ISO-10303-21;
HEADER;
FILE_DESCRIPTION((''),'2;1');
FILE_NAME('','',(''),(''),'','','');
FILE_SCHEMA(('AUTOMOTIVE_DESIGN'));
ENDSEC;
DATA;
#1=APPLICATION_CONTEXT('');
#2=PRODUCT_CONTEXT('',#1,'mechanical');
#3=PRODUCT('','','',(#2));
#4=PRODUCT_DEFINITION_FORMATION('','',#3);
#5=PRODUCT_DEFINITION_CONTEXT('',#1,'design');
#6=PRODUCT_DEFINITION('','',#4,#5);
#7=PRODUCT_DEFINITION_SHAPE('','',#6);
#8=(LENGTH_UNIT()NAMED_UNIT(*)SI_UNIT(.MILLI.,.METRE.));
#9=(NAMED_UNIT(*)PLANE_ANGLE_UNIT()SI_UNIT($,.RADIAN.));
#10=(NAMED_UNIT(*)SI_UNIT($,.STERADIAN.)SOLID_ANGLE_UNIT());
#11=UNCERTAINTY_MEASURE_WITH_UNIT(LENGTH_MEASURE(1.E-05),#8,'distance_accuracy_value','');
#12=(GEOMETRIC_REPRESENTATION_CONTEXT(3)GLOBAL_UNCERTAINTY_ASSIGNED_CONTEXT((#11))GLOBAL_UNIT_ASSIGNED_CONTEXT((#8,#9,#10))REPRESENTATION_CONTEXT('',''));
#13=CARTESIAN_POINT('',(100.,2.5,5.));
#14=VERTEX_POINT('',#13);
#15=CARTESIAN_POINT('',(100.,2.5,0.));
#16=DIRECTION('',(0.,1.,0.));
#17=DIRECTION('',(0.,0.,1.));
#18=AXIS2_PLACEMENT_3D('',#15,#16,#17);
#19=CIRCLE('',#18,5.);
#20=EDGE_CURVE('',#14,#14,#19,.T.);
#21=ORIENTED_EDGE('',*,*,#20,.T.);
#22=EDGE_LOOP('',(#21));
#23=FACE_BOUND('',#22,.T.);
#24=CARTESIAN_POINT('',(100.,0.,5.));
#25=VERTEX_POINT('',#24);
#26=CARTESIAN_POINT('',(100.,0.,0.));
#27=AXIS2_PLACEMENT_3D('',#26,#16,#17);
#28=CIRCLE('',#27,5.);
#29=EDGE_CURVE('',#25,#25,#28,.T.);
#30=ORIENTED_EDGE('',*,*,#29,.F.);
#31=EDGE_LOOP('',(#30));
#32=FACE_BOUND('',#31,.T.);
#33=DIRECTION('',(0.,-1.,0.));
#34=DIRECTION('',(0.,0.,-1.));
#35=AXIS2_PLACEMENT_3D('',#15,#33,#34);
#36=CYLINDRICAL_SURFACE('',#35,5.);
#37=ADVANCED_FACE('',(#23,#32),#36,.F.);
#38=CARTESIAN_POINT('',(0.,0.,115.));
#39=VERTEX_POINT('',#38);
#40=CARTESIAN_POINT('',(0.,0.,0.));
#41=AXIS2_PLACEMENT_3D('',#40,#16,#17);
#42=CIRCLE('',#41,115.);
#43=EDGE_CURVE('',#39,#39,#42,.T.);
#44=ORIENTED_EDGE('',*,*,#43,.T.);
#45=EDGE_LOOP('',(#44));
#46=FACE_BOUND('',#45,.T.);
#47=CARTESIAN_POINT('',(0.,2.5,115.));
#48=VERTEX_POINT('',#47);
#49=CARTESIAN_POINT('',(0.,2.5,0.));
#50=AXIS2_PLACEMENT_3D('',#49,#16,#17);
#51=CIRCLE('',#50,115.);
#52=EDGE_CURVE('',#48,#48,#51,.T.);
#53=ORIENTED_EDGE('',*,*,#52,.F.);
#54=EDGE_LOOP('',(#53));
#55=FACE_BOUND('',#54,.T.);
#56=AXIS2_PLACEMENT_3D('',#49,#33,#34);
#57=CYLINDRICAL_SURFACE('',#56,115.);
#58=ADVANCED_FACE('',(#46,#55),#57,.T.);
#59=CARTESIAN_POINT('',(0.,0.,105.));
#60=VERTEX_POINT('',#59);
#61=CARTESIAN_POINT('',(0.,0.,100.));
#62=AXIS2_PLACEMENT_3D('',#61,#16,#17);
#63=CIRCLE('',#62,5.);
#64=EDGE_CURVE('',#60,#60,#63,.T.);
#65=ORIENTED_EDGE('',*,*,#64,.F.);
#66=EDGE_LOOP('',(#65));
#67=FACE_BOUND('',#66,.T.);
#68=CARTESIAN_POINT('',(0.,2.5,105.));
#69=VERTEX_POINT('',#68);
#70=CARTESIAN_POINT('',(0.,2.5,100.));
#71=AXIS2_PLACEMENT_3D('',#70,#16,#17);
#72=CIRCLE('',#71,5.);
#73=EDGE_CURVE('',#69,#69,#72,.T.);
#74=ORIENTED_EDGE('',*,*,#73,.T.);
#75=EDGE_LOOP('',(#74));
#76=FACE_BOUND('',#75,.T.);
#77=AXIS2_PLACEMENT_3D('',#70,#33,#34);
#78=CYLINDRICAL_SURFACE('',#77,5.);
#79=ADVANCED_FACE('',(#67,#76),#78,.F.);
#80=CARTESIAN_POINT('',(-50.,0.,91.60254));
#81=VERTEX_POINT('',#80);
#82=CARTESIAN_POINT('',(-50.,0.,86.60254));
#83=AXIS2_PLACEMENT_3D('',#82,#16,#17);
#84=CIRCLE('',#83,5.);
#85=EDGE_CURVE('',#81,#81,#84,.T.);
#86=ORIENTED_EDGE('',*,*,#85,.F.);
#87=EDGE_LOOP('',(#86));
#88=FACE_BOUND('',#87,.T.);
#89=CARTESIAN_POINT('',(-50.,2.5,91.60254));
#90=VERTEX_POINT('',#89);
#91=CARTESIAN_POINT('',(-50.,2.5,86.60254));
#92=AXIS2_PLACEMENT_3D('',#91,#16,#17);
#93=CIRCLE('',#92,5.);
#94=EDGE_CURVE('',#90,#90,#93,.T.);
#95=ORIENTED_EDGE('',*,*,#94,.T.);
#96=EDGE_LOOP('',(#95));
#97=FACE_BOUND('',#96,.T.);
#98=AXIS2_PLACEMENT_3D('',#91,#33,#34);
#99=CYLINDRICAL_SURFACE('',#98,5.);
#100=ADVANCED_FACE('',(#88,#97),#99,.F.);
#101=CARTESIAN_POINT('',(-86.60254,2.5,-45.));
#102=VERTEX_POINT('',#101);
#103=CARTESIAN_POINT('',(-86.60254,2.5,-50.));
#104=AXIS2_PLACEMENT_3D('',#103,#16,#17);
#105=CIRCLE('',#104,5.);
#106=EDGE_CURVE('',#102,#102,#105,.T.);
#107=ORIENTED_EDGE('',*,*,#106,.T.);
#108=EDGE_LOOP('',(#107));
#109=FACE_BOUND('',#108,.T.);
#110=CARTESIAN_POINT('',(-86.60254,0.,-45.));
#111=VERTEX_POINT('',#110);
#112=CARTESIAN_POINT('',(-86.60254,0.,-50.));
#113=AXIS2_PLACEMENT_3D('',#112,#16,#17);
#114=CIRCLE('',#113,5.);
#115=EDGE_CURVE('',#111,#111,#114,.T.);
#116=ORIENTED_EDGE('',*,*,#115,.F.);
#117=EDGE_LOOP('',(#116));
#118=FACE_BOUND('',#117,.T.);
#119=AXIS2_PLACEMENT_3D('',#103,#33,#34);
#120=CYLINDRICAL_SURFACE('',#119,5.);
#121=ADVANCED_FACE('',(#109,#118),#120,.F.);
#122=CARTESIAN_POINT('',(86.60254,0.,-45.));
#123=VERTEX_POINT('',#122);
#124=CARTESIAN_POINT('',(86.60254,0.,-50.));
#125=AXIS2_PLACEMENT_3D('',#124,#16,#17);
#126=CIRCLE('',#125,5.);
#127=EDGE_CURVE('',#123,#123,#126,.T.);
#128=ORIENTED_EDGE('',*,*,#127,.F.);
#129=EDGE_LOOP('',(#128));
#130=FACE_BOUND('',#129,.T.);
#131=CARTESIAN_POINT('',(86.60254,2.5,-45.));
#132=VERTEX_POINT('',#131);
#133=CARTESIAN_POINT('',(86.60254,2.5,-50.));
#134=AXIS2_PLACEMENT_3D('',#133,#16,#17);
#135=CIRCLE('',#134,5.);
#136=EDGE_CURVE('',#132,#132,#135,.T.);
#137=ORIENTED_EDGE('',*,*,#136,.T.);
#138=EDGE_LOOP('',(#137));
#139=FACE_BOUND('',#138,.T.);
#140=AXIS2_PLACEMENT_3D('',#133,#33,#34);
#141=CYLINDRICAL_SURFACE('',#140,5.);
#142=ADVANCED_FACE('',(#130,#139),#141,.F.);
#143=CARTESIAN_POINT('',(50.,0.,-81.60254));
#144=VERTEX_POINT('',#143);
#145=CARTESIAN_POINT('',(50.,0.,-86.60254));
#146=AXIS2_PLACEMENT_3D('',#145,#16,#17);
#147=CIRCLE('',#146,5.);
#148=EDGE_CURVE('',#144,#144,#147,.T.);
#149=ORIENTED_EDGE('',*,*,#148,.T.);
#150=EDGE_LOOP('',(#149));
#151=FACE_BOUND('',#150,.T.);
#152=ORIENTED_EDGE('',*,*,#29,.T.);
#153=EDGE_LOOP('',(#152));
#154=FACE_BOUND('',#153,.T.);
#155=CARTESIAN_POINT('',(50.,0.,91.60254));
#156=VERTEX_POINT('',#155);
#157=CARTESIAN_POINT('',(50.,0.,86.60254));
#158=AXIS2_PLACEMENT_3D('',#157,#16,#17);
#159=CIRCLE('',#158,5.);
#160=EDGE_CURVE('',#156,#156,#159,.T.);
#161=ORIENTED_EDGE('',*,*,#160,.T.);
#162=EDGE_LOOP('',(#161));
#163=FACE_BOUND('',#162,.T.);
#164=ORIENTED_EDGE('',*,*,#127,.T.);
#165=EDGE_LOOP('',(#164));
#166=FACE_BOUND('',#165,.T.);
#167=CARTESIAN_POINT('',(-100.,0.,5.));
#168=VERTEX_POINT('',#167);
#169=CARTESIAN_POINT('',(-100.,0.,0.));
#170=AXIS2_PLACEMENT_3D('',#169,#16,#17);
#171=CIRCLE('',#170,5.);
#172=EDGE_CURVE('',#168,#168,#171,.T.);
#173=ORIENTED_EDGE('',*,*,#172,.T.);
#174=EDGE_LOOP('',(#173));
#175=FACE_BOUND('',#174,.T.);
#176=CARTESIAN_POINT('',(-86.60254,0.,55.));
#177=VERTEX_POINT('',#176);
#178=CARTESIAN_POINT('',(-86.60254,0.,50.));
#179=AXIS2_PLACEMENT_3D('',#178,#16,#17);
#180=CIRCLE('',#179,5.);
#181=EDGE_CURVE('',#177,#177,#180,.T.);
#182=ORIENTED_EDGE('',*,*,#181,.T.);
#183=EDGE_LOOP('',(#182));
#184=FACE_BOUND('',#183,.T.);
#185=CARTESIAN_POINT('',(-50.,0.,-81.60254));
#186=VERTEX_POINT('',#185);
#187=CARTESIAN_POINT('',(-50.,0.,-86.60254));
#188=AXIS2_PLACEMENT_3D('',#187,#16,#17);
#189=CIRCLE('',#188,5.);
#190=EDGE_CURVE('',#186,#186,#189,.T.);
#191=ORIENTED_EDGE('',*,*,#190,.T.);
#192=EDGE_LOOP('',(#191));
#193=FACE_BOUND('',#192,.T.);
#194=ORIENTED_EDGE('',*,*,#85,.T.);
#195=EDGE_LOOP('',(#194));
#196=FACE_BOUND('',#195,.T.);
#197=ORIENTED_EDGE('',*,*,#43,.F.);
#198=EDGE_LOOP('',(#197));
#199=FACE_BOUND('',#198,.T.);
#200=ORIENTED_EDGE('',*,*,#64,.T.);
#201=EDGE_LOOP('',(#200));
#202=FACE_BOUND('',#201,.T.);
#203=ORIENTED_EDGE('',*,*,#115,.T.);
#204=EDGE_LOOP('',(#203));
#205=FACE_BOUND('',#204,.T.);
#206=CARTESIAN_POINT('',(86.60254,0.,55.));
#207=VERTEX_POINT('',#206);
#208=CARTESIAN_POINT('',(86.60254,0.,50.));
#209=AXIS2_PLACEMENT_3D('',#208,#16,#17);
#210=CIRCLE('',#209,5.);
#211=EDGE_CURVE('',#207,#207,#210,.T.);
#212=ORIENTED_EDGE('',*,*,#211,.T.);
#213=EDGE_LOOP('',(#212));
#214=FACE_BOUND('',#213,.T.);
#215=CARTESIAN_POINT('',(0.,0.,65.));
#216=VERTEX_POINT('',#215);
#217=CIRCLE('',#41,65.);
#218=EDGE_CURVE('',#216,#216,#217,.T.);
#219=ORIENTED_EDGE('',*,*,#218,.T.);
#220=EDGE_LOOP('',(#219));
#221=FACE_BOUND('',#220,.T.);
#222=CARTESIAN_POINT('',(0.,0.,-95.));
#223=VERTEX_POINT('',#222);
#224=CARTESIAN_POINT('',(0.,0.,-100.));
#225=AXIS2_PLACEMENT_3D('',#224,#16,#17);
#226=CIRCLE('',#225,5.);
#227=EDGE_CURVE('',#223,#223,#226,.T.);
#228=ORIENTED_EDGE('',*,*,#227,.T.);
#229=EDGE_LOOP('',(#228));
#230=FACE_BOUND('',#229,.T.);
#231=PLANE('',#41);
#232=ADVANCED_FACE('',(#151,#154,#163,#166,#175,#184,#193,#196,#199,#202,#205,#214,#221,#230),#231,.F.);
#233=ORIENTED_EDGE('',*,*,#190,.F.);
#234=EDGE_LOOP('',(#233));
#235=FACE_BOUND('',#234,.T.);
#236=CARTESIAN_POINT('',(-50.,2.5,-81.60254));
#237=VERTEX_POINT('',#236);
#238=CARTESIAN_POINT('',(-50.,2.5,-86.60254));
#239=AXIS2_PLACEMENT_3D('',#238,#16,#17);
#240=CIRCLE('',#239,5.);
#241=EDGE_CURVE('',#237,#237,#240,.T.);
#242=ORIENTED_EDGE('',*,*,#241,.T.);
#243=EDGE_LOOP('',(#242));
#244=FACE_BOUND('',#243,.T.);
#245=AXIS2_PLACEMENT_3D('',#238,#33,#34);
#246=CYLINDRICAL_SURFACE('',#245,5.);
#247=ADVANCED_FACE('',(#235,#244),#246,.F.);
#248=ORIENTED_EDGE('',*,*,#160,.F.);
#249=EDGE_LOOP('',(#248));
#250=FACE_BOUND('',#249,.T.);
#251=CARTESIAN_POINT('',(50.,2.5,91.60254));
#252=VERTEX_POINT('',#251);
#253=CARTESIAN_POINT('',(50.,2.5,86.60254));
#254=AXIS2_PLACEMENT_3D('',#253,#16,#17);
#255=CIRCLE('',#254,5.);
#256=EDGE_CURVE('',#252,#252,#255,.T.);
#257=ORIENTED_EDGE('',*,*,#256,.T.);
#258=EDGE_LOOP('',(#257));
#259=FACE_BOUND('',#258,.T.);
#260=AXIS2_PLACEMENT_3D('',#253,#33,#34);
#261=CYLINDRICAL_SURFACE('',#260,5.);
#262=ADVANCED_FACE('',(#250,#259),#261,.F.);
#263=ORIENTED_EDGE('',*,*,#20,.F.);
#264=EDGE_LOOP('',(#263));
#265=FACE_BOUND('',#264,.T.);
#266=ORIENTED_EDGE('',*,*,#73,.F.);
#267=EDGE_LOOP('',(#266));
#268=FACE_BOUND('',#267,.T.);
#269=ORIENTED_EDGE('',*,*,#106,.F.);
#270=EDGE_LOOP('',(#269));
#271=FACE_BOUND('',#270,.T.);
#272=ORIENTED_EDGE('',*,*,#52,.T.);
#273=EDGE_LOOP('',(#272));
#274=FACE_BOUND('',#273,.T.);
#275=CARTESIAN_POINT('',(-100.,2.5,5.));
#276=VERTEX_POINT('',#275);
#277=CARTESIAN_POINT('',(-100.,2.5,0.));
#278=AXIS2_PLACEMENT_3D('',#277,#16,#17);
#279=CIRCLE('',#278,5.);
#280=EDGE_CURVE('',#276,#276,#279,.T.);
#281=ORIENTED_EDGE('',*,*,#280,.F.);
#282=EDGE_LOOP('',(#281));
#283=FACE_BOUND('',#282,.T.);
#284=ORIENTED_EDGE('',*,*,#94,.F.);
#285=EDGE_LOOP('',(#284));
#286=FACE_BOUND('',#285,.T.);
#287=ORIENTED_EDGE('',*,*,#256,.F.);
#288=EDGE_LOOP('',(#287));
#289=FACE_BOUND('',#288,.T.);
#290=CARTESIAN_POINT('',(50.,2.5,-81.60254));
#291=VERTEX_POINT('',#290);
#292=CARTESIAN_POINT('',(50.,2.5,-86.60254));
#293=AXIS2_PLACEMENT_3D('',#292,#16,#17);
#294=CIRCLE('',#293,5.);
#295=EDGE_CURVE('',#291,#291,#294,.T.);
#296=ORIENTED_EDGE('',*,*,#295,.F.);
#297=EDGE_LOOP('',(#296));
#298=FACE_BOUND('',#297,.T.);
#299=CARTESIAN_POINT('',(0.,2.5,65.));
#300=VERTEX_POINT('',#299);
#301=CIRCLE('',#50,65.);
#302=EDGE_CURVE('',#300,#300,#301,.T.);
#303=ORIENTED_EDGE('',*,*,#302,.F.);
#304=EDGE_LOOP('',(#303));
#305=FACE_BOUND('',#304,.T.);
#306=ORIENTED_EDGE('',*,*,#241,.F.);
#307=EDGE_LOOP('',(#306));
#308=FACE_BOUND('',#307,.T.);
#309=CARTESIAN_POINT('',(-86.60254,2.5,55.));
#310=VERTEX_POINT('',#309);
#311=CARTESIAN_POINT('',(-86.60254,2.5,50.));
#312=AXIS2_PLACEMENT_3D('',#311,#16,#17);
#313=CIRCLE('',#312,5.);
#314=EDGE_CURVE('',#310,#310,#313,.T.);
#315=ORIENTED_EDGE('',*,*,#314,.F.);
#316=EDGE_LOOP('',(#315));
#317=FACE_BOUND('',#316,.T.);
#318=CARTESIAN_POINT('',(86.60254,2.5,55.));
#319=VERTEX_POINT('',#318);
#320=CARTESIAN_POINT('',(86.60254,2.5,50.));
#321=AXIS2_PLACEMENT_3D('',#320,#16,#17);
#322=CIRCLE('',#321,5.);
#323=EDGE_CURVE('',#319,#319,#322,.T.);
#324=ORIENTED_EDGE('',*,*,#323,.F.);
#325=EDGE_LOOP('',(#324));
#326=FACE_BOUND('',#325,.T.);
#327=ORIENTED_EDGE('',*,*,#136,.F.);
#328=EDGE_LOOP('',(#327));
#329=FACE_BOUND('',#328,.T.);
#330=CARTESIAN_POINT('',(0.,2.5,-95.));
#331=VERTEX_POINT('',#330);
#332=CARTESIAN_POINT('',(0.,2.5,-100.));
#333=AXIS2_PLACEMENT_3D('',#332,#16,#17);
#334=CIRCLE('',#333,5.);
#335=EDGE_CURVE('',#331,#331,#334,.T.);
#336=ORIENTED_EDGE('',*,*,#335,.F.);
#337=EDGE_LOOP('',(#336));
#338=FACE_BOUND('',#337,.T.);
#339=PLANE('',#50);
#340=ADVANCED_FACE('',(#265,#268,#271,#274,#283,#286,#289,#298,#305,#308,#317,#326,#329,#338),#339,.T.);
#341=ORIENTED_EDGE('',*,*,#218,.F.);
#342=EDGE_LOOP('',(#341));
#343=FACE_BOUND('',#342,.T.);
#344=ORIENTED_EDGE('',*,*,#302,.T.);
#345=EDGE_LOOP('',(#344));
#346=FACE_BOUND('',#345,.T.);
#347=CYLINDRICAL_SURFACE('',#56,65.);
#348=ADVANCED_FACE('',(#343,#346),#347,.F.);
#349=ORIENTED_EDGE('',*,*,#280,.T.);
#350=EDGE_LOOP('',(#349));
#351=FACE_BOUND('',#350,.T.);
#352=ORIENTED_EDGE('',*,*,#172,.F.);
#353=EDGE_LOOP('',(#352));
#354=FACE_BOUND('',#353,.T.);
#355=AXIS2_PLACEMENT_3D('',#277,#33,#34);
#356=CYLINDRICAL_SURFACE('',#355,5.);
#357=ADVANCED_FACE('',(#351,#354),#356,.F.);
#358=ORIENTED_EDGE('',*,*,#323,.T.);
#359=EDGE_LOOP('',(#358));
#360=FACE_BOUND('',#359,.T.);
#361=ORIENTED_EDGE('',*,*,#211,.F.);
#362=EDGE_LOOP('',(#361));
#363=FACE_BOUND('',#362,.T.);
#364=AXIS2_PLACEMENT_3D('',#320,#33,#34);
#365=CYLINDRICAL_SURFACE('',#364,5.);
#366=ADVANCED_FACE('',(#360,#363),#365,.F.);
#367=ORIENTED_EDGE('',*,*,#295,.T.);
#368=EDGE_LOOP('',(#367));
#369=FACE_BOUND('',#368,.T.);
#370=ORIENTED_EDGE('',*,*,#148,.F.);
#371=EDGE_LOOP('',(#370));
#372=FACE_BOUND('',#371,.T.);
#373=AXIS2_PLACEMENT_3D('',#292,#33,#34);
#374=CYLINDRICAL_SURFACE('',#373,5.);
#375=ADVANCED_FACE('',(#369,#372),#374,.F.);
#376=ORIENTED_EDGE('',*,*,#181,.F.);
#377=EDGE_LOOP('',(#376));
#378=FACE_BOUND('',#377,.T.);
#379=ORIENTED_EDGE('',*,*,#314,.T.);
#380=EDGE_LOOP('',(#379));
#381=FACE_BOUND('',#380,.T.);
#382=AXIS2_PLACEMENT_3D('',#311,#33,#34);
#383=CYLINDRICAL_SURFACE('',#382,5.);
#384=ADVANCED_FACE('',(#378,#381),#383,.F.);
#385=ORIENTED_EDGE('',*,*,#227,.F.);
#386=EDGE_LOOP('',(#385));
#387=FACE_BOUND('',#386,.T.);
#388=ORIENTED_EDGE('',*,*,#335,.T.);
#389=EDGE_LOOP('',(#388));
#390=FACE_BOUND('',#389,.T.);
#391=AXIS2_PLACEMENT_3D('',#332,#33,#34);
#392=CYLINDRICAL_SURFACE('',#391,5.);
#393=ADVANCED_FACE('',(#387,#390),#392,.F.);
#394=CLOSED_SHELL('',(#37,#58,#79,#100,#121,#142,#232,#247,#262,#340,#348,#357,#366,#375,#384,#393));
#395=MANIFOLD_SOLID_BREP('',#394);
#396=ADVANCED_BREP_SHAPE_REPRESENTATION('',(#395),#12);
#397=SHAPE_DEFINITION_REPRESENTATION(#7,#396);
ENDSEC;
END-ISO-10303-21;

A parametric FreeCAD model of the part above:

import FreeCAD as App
import Part
import Sketcher
Q = App.Units.Quantity

doc = App.newDocument("Part")
body = doc.addObject("PartDesign::Body", "Body")

# Sketch on XZ plane
sketch1 = doc.addObject("Sketcher::SketchObject", "Sketch")
body.addObject(sketch1)
sketch1.AttachmentSupport = (doc.XZ_Plane, [""])
sketch1.MapMode = "FlatFace"
sketch1.addGeometry(Part.Circle(App.Vector(0, 0, 0), App.Vector(0, 0, 1), 115), False)
sketch1.addGeometry(Part.Circle(App.Vector(-87, -50, 0), App.Vector(0, 0, 1), 5), False)
sketch1.addGeometry(Part.Circle(App.Vector(-50, -87, 0), App.Vector(0, 0, 1), 5), False)
sketch1.addGeometry(Part.Circle(App.Vector(-100, 0, 0), App.Vector(0, 0, 1), 5), False)
sketch1.addGeometry(Part.Circle(App.Vector(-87, 50, 0), App.Vector(0, 0, 1), 5), False)
sketch1.addGeometry(Part.Circle(App.Vector(-50, 87, 0), App.Vector(0, 0, 1), 5), False)
sketch1.addGeometry(Part.Circle(App.Vector(0, -100, 0), App.Vector(0, 0, 1), 5), False)
sketch1.addGeometry(Part.Circle(App.Vector(50, -87, 0), App.Vector(0, 0, 1), 5), False)
sketch1.addGeometry(Part.Circle(App.Vector(87, -50, 0), App.Vector(0, 0, 1), 5), False)
sketch1.addGeometry(Part.Circle(App.Vector(0, 0, 0), App.Vector(0, 0, 1), 65), False)
sketch1.addGeometry(Part.Circle(App.Vector(0, 100, 0), App.Vector(0, 0, 1), 5), False)
sketch1.addGeometry(Part.Circle(App.Vector(50, 87, 0), App.Vector(0, 0, 1), 5), False)
sketch1.addGeometry(Part.Circle(App.Vector(100, 0, 0), App.Vector(0, 0, 1), 5), False)
sketch1.addGeometry(Part.Circle(App.Vector(87, 50, 0), App.Vector(0, 0, 1), 5), False)
sketch1.addConstraint(Sketcher.Constraint("Coincident", 0, 3, -1, 1))
sketch1.addConstraint(Sketcher.Constraint("Coincident", 9, 3, -1, 1))
sketch1.addConstraint(Sketcher.Constraint("Equal", 1, 2))
sketch1.addConstraint(Sketcher.Constraint("Equal", 2, 3))
sketch1.addConstraint(Sketcher.Constraint("Equal", 3, 4))
sketch1.addConstraint(Sketcher.Constraint("Equal", 4, 5))
sketch1.addConstraint(Sketcher.Constraint("Equal", 5, 6))
sketch1.addConstraint(Sketcher.Constraint("Equal", 6, 7))
sketch1.addConstraint(Sketcher.Constraint("Equal", 7, 8))
sketch1.addConstraint(Sketcher.Constraint("Equal", 8, 10))
sketch1.addConstraint(Sketcher.Constraint("Equal", 10, 11))
sketch1.addConstraint(Sketcher.Constraint("Equal", 11, 12))
sketch1.addConstraint(Sketcher.Constraint("Equal", 12, 13))
sketch1.addConstraint(Sketcher.Constraint("Symmetric", 5, 3, 7, 3, -1, 1))
sketch1.addConstraint(Sketcher.Constraint("Symmetric", 4, 3, 8, 3, -1, 1))
sketch1.addConstraint(Sketcher.Constraint("Symmetric", 6, 3, 10, 3, -1, 1))
sketch1.addConstraint(Sketcher.Constraint("Symmetric", 2, 3, 11, 3, -1, 1))
sketch1.addConstraint(Sketcher.Constraint("Symmetric", 3, 3, 12, 3, -1, 1))
sketch1.addConstraint(Sketcher.Constraint("Symmetric", 1, 3, 13, 3, -1, 1))
sketch1.addConstraint(Sketcher.Constraint("Symmetric", 2, 3, 7, 3, -2))
sketch1.addConstraint(Sketcher.Constraint("Symmetric", 1, 3, 8, 3, -2))
sketch1.addConstraint(Sketcher.Constraint("PointOnObject", 3, 3, -1))
sketch1.addConstraint(Sketcher.Constraint("PointOnObject", 6, 3, -2))
sketch1.addConstraint(Sketcher.Constraint("Diameter", 0, Q("230 mm")))
sketch1.addConstraint(Sketcher.Constraint("Diameter", 1, Q("10 mm")))
sketch1.addConstraint(Sketcher.Constraint("Diameter", 9, Q("130 mm")))
sketch1.addConstraint(Sketcher.Constraint("DistanceY", 1, 3, -1, 1, Q("50 mm")))
sketch1.addConstraint(Sketcher.Constraint("DistanceX", 2, 3, -1, 1, Q("50 mm")))
sketch1.addConstraint(Sketcher.Constraint("DistanceX", 3, 3, -1, 1, Q("100 mm")))
sketch1.addConstraint(Sketcher.Constraint("DistanceY", 6, 3, -1, 1, Q("100 mm")))
sketch1.addConstraint(Sketcher.Constraint("DistanceX", 1, 3, -1, 1, Q("86.60254 mm")))
sketch1.addConstraint(Sketcher.Constraint("DistanceY", 2, 3, -1, 1, Q("86.60254 mm")))
pad1 = doc.addObject("PartDesign::Pad", "Pad")
body.addObject(pad1)
pad1.Profile = sketch1
pad1.Length = 2.5
pad1.Reversed = True

doc.recompute()
